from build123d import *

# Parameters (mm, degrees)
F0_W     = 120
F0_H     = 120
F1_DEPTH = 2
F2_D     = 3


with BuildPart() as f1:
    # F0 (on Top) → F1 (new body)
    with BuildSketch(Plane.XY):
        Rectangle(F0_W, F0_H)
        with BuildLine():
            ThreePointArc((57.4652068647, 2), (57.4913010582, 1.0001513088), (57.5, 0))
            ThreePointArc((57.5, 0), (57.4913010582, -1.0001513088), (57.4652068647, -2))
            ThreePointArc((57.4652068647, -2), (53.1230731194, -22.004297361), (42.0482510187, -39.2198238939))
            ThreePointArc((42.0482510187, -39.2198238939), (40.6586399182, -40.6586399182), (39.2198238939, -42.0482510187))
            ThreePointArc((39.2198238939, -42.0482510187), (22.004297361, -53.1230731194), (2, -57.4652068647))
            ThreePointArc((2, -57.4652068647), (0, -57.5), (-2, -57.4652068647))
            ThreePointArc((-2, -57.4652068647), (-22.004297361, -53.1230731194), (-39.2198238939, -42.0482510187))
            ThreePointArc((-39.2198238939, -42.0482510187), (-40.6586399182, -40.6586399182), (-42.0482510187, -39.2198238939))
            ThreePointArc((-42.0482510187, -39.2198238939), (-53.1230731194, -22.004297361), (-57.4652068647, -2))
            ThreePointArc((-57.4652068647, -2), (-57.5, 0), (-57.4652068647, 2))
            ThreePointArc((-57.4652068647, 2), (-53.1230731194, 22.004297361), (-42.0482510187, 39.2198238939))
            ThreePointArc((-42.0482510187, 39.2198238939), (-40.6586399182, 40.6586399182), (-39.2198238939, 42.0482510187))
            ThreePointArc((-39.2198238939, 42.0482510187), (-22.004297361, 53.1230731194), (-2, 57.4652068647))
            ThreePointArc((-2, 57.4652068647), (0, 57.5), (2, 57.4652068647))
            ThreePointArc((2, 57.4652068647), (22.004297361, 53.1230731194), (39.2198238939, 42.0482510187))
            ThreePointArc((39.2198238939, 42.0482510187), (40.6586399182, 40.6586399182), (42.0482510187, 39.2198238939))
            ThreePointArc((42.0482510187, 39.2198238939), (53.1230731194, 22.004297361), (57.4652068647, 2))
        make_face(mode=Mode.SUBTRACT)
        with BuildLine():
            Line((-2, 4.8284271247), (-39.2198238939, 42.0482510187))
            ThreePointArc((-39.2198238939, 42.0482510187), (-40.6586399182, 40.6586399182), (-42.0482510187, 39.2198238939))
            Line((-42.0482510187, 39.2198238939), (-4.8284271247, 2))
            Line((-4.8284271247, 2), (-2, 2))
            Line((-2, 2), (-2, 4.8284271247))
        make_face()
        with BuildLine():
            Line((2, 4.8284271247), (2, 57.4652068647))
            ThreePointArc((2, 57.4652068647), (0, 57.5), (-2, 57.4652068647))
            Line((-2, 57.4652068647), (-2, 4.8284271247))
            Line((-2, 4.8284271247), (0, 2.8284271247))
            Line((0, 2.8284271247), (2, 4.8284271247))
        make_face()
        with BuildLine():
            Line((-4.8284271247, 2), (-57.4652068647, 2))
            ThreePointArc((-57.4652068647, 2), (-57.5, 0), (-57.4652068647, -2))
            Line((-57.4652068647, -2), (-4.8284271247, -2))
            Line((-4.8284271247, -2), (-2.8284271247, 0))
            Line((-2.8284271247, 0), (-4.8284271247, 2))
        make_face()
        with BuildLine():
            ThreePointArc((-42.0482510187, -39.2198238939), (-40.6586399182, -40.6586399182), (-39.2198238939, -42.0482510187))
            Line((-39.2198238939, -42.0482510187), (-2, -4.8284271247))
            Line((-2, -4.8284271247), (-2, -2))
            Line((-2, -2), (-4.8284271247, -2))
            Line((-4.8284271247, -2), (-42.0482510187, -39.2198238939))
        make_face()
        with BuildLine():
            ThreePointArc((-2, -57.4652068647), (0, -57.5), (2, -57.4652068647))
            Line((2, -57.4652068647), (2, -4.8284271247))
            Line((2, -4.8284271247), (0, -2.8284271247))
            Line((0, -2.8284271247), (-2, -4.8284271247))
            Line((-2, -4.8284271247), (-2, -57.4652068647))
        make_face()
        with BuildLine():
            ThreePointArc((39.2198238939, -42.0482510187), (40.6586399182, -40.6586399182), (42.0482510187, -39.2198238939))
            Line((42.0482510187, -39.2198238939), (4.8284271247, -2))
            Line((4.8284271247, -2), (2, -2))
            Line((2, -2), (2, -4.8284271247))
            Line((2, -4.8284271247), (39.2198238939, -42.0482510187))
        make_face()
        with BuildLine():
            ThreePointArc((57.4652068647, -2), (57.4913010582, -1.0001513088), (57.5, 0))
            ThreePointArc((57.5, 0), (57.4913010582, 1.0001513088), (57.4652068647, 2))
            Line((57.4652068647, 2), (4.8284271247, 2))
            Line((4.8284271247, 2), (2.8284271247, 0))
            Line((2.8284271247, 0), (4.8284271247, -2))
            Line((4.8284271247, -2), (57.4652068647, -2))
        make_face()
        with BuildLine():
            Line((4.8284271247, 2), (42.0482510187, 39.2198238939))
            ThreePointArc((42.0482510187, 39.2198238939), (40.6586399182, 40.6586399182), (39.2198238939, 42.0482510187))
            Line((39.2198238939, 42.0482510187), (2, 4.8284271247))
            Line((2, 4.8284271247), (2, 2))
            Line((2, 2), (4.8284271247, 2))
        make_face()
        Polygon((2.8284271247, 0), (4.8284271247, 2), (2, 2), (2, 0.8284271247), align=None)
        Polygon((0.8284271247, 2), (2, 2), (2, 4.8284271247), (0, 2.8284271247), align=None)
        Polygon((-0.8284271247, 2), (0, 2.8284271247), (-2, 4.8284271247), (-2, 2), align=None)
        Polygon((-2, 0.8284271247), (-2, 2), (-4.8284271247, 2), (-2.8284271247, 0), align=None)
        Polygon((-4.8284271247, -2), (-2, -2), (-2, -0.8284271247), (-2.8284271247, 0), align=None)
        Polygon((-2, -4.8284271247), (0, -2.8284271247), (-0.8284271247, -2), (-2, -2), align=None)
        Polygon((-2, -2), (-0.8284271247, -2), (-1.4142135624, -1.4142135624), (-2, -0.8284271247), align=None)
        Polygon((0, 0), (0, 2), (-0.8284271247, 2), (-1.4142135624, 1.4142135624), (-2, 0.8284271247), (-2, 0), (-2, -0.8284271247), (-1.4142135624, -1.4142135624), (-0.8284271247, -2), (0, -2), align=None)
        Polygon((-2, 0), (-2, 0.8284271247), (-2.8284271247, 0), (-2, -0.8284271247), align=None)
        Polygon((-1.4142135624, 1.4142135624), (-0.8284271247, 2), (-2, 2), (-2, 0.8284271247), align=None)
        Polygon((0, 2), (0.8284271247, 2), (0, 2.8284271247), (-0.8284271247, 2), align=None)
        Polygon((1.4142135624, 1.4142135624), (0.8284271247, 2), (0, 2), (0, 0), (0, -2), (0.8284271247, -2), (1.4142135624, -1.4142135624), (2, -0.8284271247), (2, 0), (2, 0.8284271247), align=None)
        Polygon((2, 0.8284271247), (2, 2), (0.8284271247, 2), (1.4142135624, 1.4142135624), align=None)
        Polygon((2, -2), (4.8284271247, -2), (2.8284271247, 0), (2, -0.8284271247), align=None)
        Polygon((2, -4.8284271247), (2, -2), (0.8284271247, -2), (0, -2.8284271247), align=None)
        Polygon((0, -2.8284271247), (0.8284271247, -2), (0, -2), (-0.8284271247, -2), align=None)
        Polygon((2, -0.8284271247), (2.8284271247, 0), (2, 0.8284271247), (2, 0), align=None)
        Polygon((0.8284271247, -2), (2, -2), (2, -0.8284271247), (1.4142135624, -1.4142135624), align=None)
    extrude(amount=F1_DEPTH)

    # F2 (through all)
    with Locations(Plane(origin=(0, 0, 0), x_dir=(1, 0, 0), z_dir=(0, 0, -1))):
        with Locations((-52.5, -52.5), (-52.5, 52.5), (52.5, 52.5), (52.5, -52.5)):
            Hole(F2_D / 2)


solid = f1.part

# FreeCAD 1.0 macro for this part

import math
import FreeCAD as App
import Part
import Sketcher

V = App.Vector
Q = App.Units.Quantity


def add_polygon(sketch, points):
    """Adds a closed chain of lines whose ends are joined by coincident constraints."""
    first, n = sketch.GeometryCount, len(points)
    for a, b in zip(points, points[1:] + points[:1]):
        sketch.addGeometry(Part.LineSegment(App.Vector(*a, 0), App.Vector(*b, 0)), False)
    for i in range(n):
        sketch.addConstraint(Sketcher.Constraint("Coincident", first + i, 2, first + (i + 1) % n, 1))

doc = App.newDocument("Part")
body = doc.addObject("PartDesign::Body", "Body")

sketch1 = doc.addObject("Sketcher::SketchObject", "Sketch")
body.addObject(sketch1)
sketch1.AttachmentSupport = (doc.XY_Plane, [""])
sketch1.MapMode = "FlatFace"
add_polygon(sketch1, [(-60, 60), (-60, -60), (60, -60), (60, 60)])
sketch1.addGeometry(Part.LineSegment(V(-39, -42, 0), V(-2, -5, 0)), False)
sketch1.addGeometry(Part.LineSegment(V(-2, -5, 0), V(-2, -57, 0)), False)
sketch1.addGeometry(Part.ArcOfCircle(Part.Circle(V(0, 0, 0), V(0, 0, 1), 58), math.radians(-133), math.radians(-92)), False)
sketch1.addGeometry(Part.LineSegment(V(-57, -2, 0), V(-5, -2, 0)), False)
sketch1.addGeometry(Part.LineSegment(V(-5, -2, 0), V(-42, -39, 0)), False)
sketch1.addGeometry(Part.ArcOfCircle(Part.Circle(V(0, 0, 0), V(0, 0, 1), 58), math.radians(-178), math.radians(-137)), False)
sketch1.addGeometry(Part.LineSegment(V(2, -57, 0), V(2, -5, 0)), False)
sketch1.addGeometry(Part.LineSegment(V(2, -5, 0), V(39, -42, 0)), False)
sketch1.addGeometry(Part.ArcOfCircle(Part.Circle(V(0, 0, 0), V(0, 0, 1), 58), math.radians(-88), math.radians(-47)), False)
sketch1.addGeometry(Part.LineSegment(V(42, -39, 0), V(5, -2, 0)), False)
sketch1.addGeometry(Part.LineSegment(V(5, -2, 0), V(57, -2, 0)), False)
sketch1.addGeometry(Part.ArcOfCircle(Part.Circle(V(0, 0, 0), V(0, 0, 1), 58), math.radians(-43), math.radians(-2)), False)
sketch1.addGeometry(Part.LineSegment(V(-42, 39, 0), V(-5, 2, 0)), False)
sketch1.addGeometry(Part.LineSegment(V(-5, 2, 0), V(-57, 2, 0)), False)
sketch1.addGeometry(Part.ArcOfCircle(Part.Circle(V(0, 0, 0), V(0, 0, 1), 58), math.radians(137), math.radians(178)), False)
sketch1.addGeometry(Part.LineSegment(V(-2, 57, 0), V(-2, 5, 0)), False)
sketch1.addGeometry(Part.LineSegment(V(-2, 5, 0), V(-39, 42, 0)), False)
sketch1.addGeometry(Part.ArcOfCircle(Part.Circle(V(0, 0, 0), V(0, 0, 1), 58), math.radians(92), math.radians(133)), False)
sketch1.addGeometry(Part.LineSegment(V(57, 2, 0), V(5, 2, 0)), False)
sketch1.addGeometry(Part.LineSegment(V(5, 2, 0), V(42, 39, 0)), False)
sketch1.addGeometry(Part.ArcOfCircle(Part.Circle(V(0, 0, 0), V(0, 0, 1), 58), math.radians(2), math.radians(43)), False)
sketch1.addGeometry(Part.LineSegment(V(39, 42, 0), V(2, 5, 0)), False)
sketch1.addGeometry(Part.LineSegment(V(2, 5, 0), V(2, 57, 0)), False)
sketch1.addGeometry(Part.ArcOfCircle(Part.Circle(V(0, 0, 0), V(0, 0, 1), 58), math.radians(47), math.radians(88)), False)
sketch1.addConstraint(Sketcher.Constraint("Coincident", 4, 2, 5, 1))
sketch1.addConstraint(Sketcher.Constraint("Coincident", 5, 2, 6, 2))
sketch1.addConstraint(Sketcher.Constraint("Coincident", 6, 1, 4, 1))
sketch1.addConstraint(Sketcher.Constraint("Coincident", 7, 2, 8, 1))
sketch1.addConstraint(Sketcher.Constraint("Coincident", 8, 2, 9, 2))
sketch1.addConstraint(Sketcher.Constraint("Coincident", 9, 1, 7, 1))
sketch1.addConstraint(Sketcher.Constraint("Coincident", 10, 2, 11, 1))
sketch1.addConstraint(Sketcher.Constraint("Coincident", 11, 2, 12, 2))
sketch1.addConstraint(Sketcher.Constraint("Coincident", 12, 1, 10, 1))
sketch1.addConstraint(Sketcher.Constraint("Coincident", 13, 2, 14, 1))
sketch1.addConstraint(Sketcher.Constraint("Coincident", 14, 2, 15, 2))
sketch1.addConstraint(Sketcher.Constraint("Coincident", 15, 1, 13, 1))
sketch1.addConstraint(Sketcher.Constraint("Coincident", 16, 2, 17, 1))
sketch1.addConstraint(Sketcher.Constraint("Coincident", 17, 2, 18, 2))
sketch1.addConstraint(Sketcher.Constraint("Coincident", 18, 1, 16, 1))
sketch1.addConstraint(Sketcher.Constraint("Coincident", 19, 2, 20, 1))
sketch1.addConstraint(Sketcher.Constraint("Coincident", 20, 2, 21, 2))
sketch1.addConstraint(Sketcher.Constraint("Coincident", 21, 1, 19, 1))
sketch1.addConstraint(Sketcher.Constraint("Coincident", 22, 2, 23, 1))
sketch1.addConstraint(Sketcher.Constraint("Coincident", 23, 2, 24, 2))
sketch1.addConstraint(Sketcher.Constraint("Coincident", 24, 1, 22, 1))
sketch1.addConstraint(Sketcher.Constraint("Coincident", 25, 2, 26, 1))
sketch1.addConstraint(Sketcher.Constraint("Coincident", 26, 2, 27, 2))
sketch1.addConstraint(Sketcher.Constraint("Coincident", 27, 1, 25, 1))
sketch1.addConstraint(Sketcher.Constraint("Vertical", 0))
sketch1.addConstraint(Sketcher.Constraint("Horizontal", 1))
sketch1.addConstraint(Sketcher.Constraint("Vertical", 2))
sketch1.addConstraint(Sketcher.Constraint("Horizontal", 3))
sketch1.addConstraint(Sketcher.Constraint("Vertical", 5))
sketch1.addConstraint(Sketcher.Constraint("Horizontal", 7))
sketch1.addConstraint(Sketcher.Constraint("Vertical", 10))
sketch1.addConstraint(Sketcher.Constraint("Horizontal", 14))
sketch1.addConstraint(Sketcher.Constraint("Horizontal", 17))
sketch1.addConstraint(Sketcher.Constraint("Vertical", 19))
sketch1.addConstraint(Sketcher.Constraint("Horizontal", 22))
sketch1.addConstraint(Sketcher.Constraint("Vertical", 26))
sketch1.addConstraint(Sketcher.Constraint("Coincident", 6, 3, -1, 1))
sketch1.addConstraint(Sketcher.Constraint("Coincident", 9, 3, -1, 1))
sketch1.addConstraint(Sketcher.Constraint("Coincident", 12, 3, -1, 1))
sketch1.addConstraint(Sketcher.Constraint("Coincident", 15, 3, -1, 1))
sketch1.addConstraint(Sketcher.Constraint("Coincident", 18, 3, -1, 1))
sketch1.addConstraint(Sketcher.Constraint("Coincident", 21, 3, -1, 1))
sketch1.addConstraint(Sketcher.Constraint("Coincident", 24, 3, -1, 1))
sketch1.addConstraint(Sketcher.Constraint("Coincident", 27, 3, -1, 1))
sketch1.addConstraint(Sketcher.Constraint("Equal", 6, 9))
sketch1.addConstraint(Sketcher.Constraint("Equal", 9, 12))
sketch1.addConstraint(Sketcher.Constraint("Equal", 12, 15))
sketch1.addConstraint(Sketcher.Constraint("Equal", 15, 18))
sketch1.addConstraint(Sketcher.Constraint("Equal", 18, 21))
sketch1.addConstraint(Sketcher.Constraint("Equal", 21, 24))
sketch1.addConstraint(Sketcher.Constraint("Equal", 24, 27))
sketch1.addConstraint(Sketcher.Constraint("Symmetric", 0, 2, 2, 2, -1, 1))
sketch1.addConstraint(Sketcher.Constraint("Symmetric", 13, 2, 16, 2, -1, 1))
sketch1.addConstraint(Sketcher.Constraint("Symmetric", 10, 2, 19, 2, -1, 1))
sketch1.addConstraint(Sketcher.Constraint("Symmetric", 7, 2, 22, 2, -1, 1))
sketch1.addConstraint(Sketcher.Constraint("Symmetric", 4, 2, 25, 2, -1, 1))
sketch1.addConstraint(Sketcher.Constraint("Symmetric", 4, 2, 10, 2, -2))
sketch1.addConstraint(Sketcher.Constraint("Symmetric", 7, 2, 13, 2, -2))
sketch1.addConstraint(Sketcher.Constraint("Parallel", 4, 8))
sketch1.addConstraint(Sketcher.Constraint("Perpendicular", 8, 11))
sketch1.addConstraint(Sketcher.Constraint("Parallel", 11, 13))
sketch1.addConstraint(Sketcher.Constraint("Parallel", 13, 16))
sketch1.addConstraint(Sketcher.Constraint("Parallel", 16, 20))
sketch1.addConstraint(Sketcher.Constraint("Perpendicular", 20, 23))
sketch1.addConstraint(Sketcher.Constraint("Parallel", 23, 25))
sketch1.addConstraint(Sketcher.Constraint("Horizontal", 6, 1, 11, 2))
sketch1.addConstraint(Sketcher.Constraint("Equal", 3, 0))
sketch1.addConstraint(Sketcher.Constraint("Equal", 22, 5))
sketch1.addConstraint(Sketcher.Constraint("Equal", 4, 8))
sketch1.addConstraint(Sketcher.Constraint("Radius", 6, Q("57.5 mm")))
sketch1.addConstraint(Sketcher.Constraint("DistanceX", 1, 1, 1, 2, Q("120 mm")))
sketch1.addConstraint(Sketcher.Constraint("DistanceX", 4, 2, -1, 1, Q("2 mm")))
sketch1.addConstraint(Sketcher.Constraint("DistanceX", 7, 1, 7, 2, Q("52.63678 mm")))
pad1 = doc.addObject("PartDesign::Pad", "Pad")
body.addObject(pad1)
pad1.Profile = sketch1
pad1.Length = 2

sketch2 = doc.addObject("Sketcher::SketchObject", "Sketch001")
body.addObject(sketch2)
sketch2.AttachmentSupport = (doc.XY_Plane, [""])
sketch2.MapMode = "FlatFace"
sketch2.addGeometry(Part.Circle(V(-52.5, 52.5, 0), V(0, 0, 1), 1.5), False)
sketch2.addGeometry(Part.Circle(V(-52.5, -52.5, 0), V(0, 0, 1), 1.5), False)
sketch2.addGeometry(Part.Circle(V(52.5, -52.5, 0), V(0, 0, 1), 1.5), False)
sketch2.addGeometry(Part.Circle(V(52.5, 52.5, 0), V(0, 0, 1), 1.5), False)
sketch2.addConstraint(Sketcher.Constraint("Equal", 0, 1))
sketch2.addConstraint(Sketcher.Constraint("Equal", 1, 2))
sketch2.addConstraint(Sketcher.Constraint("Equal", 2, 3))
sketch2.addConstraint(Sketcher.Constraint("Symmetric", 0, 3, 2, 3, -1, 1))
sketch2.addConstraint(Sketcher.Constraint("Symmetric", 1, 3, 3, 3, -1, 1))
sketch2.addConstraint(Sketcher.Constraint("Symmetric", 1, 3, 2, 3, -2))
sketch2.addConstraint(Sketcher.Constraint("Diameter", 0, Q("3 mm")))
sketch2.addConstraint(Sketcher.Constraint("DistanceY", 1, 3, 0, 3, Q("105 mm")))
sketch2.addConstraint(Sketcher.Constraint("DistanceX", 1, 3, 2, 3, Q("105 mm")))
doc.recompute()
hole = doc.addObject("PartDesign::Hole", "Hole")
body.addObject(hole)
hole.Profile = sketch2
hole.ThreadType = "None"
hole.Diameter = 3
hole.DepthType = "ThroughAll"
hole.Reversed = True

doc.recompute()
